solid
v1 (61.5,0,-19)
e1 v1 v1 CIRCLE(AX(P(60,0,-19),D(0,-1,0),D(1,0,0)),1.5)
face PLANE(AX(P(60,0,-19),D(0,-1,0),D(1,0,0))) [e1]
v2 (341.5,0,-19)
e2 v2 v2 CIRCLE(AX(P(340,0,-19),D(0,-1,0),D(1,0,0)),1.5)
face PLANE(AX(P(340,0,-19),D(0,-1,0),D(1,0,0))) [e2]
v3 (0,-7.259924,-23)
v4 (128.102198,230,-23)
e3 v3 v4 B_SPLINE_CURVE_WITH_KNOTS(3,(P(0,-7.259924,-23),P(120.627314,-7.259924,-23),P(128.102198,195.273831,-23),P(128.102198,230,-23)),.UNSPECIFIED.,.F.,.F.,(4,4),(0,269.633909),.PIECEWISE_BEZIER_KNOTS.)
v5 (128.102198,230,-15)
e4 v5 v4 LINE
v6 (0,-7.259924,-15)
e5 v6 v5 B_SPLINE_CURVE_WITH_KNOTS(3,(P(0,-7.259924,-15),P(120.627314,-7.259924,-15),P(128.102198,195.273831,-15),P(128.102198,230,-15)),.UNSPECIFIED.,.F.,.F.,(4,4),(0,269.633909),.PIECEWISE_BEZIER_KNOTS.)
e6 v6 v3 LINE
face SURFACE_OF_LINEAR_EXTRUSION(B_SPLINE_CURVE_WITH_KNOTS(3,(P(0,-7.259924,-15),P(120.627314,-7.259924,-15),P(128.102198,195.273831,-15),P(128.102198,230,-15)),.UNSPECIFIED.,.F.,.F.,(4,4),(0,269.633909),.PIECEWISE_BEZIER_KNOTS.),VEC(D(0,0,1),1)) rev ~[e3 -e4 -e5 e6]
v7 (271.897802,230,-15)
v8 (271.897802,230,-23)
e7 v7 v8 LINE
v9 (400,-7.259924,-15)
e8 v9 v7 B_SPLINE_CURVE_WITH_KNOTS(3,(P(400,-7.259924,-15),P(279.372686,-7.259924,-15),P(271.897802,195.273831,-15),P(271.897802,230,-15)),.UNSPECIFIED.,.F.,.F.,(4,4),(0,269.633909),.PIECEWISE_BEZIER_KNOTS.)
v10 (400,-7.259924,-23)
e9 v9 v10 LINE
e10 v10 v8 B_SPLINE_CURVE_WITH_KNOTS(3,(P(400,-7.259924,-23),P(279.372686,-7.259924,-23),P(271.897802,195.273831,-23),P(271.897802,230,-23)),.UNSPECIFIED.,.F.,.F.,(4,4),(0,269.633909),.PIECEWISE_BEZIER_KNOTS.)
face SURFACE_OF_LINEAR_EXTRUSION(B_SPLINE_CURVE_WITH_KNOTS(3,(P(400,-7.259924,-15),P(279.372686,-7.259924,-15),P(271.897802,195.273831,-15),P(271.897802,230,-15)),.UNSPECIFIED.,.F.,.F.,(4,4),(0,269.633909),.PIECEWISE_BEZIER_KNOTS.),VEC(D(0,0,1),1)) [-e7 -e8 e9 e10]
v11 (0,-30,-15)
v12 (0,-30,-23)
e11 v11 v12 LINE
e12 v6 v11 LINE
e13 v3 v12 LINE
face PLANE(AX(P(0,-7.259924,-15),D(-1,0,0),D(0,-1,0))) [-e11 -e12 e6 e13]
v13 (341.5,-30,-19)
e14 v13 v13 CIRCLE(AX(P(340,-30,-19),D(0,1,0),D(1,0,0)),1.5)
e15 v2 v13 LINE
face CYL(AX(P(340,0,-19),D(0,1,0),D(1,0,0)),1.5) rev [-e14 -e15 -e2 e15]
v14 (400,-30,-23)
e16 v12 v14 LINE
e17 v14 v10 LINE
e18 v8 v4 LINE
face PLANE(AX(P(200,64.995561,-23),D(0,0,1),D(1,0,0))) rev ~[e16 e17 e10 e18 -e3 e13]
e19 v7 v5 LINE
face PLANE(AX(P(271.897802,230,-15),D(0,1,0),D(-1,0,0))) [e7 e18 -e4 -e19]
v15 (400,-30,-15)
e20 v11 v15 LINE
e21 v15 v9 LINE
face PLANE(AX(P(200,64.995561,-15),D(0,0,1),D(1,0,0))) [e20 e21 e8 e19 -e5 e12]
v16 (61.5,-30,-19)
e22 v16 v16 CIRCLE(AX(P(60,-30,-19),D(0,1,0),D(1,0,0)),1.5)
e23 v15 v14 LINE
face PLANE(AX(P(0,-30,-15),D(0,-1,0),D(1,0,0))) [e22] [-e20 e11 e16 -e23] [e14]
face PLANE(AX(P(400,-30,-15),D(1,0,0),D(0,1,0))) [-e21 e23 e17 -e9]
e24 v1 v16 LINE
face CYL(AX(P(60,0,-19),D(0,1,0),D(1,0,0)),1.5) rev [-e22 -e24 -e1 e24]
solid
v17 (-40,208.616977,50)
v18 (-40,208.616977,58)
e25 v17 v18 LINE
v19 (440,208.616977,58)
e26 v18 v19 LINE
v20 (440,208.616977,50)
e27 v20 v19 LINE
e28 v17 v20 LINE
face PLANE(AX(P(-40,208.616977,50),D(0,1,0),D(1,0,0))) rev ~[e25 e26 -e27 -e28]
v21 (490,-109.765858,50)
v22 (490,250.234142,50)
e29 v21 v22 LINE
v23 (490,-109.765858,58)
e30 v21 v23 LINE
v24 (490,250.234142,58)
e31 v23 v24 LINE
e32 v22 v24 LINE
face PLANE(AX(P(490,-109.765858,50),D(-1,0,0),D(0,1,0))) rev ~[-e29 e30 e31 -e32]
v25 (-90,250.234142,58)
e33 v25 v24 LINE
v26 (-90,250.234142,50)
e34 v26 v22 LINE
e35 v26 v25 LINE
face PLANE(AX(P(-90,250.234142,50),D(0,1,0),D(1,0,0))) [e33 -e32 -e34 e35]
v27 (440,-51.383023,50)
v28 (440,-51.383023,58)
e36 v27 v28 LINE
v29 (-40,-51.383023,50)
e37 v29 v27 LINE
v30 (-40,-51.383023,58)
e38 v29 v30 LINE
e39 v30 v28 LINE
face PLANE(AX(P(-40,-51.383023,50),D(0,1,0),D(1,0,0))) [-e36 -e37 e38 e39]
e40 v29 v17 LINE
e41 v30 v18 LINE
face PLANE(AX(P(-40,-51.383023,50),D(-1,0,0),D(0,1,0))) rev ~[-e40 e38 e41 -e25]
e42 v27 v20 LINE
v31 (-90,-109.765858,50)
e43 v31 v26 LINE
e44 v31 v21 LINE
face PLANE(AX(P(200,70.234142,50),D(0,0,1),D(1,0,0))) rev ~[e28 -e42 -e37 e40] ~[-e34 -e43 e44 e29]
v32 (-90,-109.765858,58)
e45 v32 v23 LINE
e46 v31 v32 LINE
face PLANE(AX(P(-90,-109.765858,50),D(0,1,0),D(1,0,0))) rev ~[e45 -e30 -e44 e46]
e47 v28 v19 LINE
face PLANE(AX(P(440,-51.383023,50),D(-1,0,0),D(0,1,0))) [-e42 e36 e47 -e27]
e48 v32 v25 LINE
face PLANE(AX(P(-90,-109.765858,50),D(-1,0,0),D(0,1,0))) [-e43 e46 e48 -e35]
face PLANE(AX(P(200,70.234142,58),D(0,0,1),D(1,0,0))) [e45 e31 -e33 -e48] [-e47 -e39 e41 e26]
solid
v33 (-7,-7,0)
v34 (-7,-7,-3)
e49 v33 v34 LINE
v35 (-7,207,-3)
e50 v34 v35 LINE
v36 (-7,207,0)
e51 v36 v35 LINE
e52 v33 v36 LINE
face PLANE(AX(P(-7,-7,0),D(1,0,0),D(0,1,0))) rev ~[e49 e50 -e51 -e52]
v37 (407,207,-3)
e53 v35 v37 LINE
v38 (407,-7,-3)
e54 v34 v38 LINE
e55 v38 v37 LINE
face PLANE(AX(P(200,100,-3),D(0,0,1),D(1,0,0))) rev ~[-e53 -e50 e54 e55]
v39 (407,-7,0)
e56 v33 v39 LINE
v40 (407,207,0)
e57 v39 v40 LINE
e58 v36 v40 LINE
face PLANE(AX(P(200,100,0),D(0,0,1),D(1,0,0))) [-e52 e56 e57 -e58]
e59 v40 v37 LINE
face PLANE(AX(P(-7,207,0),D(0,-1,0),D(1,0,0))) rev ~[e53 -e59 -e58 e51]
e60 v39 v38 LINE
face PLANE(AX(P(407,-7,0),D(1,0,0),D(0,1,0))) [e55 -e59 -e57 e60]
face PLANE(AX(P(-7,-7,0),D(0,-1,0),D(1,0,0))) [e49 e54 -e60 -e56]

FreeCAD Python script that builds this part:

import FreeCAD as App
import Part
import Sketcher

V = App.Vector
Q = App.Units.Quantity


def add_polygon(sketch, points):
    """Adds a closed chain of lines whose ends are joined by coincident constraints."""
    first, n = sketch.GeometryCount, len(points)
    for a, b in zip(points, points[1:] + points[:1]):
        sketch.addGeometry(Part.LineSegment(App.Vector(*a, 0), App.Vector(*b, 0)), False)
    for i in range(n):
        sketch.addConstraint(Sketcher.Constraint("Coincident", first + i, 2, first + (i + 1) % n, 1))

doc = App.newDocument("Part")
body = doc.addObject("PartDesign::Body", "Body")

sketch1 = doc.addObject("Sketcher::SketchObject", "Sketch")
body.addObject(sketch1)
sketch1.AttachmentSupport = (doc.XY_Plane, [""])
sketch1.MapMode = "FlatFace"
add_polygon(sketch1, [(-7, 207), (-7, -7), (407, -7), (407, 207)])
sketch1.addConstraint([
    Sketcher.Constraint("Vertical", 0),
    Sketcher.Constraint("Horizontal", 1),
    Sketcher.Constraint("Vertical", 2),
    Sketcher.Constraint("Horizontal", 3),
    Sketcher.Constraint("DistanceX", 1, 1, 1, 2, Q("414 mm")),
    Sketcher.Constraint("DistanceY", 0, 2, 0, 1, Q("214 mm")),
    Sketcher.Constraint("DistanceX", 0, 2, -1, 1, Q("7 mm")),
    Sketcher.Constraint("DistanceY", 0, 2, -1, 1, Q("7 mm")),
])
pad1 = doc.addObject("PartDesign::Pad", "Pad")
body.addObject(pad1)
pad1.Profile = sketch1
pad1.Length = 3
pad1.Reversed = True
body2 = doc.addObject("PartDesign::Body", "Body001")

sketch2 = doc.addObject("Sketcher::SketchObject", "Sketch001")
body2.addObject(sketch2)
sketch2.AttachmentSupport = (doc.getObject("XY_Plane001"), [""])
sketch2.MapMode = "FlatFace"
sketch2.AttachmentOffset = App.Placement(V(0, 0, -15), App.Rotation())
sketch2.addGeometry([
    Part.LineSegment(V(0, -7.259924, 0), V(0, -30, 0)),
    Part.LineSegment(V(0, -30, 0), V(400, -30, 0)),
    Part.LineSegment(V(400, -30, 0), V(400, -7.259924, 0)),
    Part.BSplineCurve([V(400, -7.259924, 0), V(279.372686, -7.259924, 0), V(271.897802, 195.273831, 0), V(271.897802, 230, 0)], [4, 4], [0, 269.633909], False, 3, [1, 1, 1, 1], False),
    Part.LineSegment(V(271.897802, 230, 0), V(128.102198, 230, 0)),
    Part.BSplineCurve([V(0, -7.259924, 0), V(120.627314, -7.259924, 0), V(128.102198, 195.273831, 0), V(128.102198, 230, 0)], [4, 4], [0, 269.633909], False, 3, [1, 1, 1, 1], False),
], False)
sketch2.addConstraint([
    Sketcher.Constraint("Block", 3),
    Sketcher.Constraint("Block", 5),
    Sketcher.Constraint("Coincident", 0, 2, 1, 1),
    Sketcher.Constraint("Coincident", 1, 2, 2, 1),
    Sketcher.Constraint("Coincident", 2, 2, 3, 1),
    Sketcher.Constraint("Coincident", 3, 2, 4, 1),
    Sketcher.Constraint("Coincident", 4, 2, 5, 2),
    Sketcher.Constraint("Coincident", 5, 1, 0, 1),
    Sketcher.Constraint("Vertical", 0),
    Sketcher.Constraint("Horizontal", 1),
    Sketcher.Constraint("Vertical", 2),
    Sketcher.Constraint("DistanceY", 0, 2, -1, 1, Q("30 mm")),
])
pad2 = doc.addObject("PartDesign::Pad", "Pad001")
body2.addObject(pad2)
pad2.Profile = sketch2
pad2.Length = 8
pad2.Reversed = True

sketch3 = doc.addObject("Sketcher::SketchObject", "Sketch002")
body2.addObject(sketch3)
sketch3.AttachmentSupport = (doc.getObject("XZ_Plane001"), [""])
sketch3.MapMode = "FlatFace"
sketch3.addGeometry([
    Part.Circle(V(340, -19, 0), V(0, 0, 1), 1.5),
    Part.Circle(V(60, -19, 0), V(0, 0, 1), 1.5),
], False)
sketch3.addConstraint([
    Sketcher.Constraint("Equal", 0, 1),
    Sketcher.Constraint("Horizontal", 0, 3, 1, 3),
    Sketcher.Constraint("Diameter", 0, Q("3 mm")),
    Sketcher.Constraint("DistanceX", -1, 1, 0, 3, Q("340 mm")),
    Sketcher.Constraint("DistanceY", 0, 3, -1, 1, Q("19 mm")),
    Sketcher.Constraint("DistanceX", -1, 1, 1, 3, Q("60 mm")),
])
pocket1 = doc.addObject("PartDesign::Pocket", "Pocket")
body2.addObject(pocket1)
pocket1.Profile = sketch3
pocket1.Type = "ThroughAll"
pocket1.Reversed = True
body3 = doc.addObject("PartDesign::Body", "Body002")

sketch4 = doc.addObject("Sketcher::SketchObject", "Sketch003")
body3.addObject(sketch4)
sketch4.AttachmentSupport = (doc.getObject("XY_Plane002"), [""])
sketch4.MapMode = "FlatFace"
sketch4.AttachmentOffset = App.Placement(V(0, 0, 50), App.Rotation())
add_polygon(sketch4, [(-90, 250), (-90, -110), (490, -110), (490, 250)])
add_polygon(sketch4, [(440, -51), (-40, -51), (-40, 209), (440, 209)])
sketch4.addConstraint([
    Sketcher.Constraint("Vertical", 0),
    Sketcher.Constraint("Horizontal", 1),
    Sketcher.Constraint("Vertical", 2),
    Sketcher.Constraint("Horizontal", 3),
    Sketcher.Constraint("Horizontal", 4),
    Sketcher.Constraint("Vertical", 5),
    Sketcher.Constraint("Horizontal", 6),
    Sketcher.Constraint("Vertical", 7),
    Sketcher.Constraint("DistanceX", 1, 1, 1, 2, Q("580 mm")),
    Sketcher.Constraint("DistanceX", 4, 2, 4, 1, Q("480 mm")),
    Sketcher.Constraint("DistanceY", 0, 2, 0, 1, Q("360 mm")),
    Sketcher.Constraint("DistanceY", 5, 1, 5, 2, Q("260 mm")),
    Sketcher.Constraint("DistanceX", 0, 2, -1, 1, Q("90 mm")),
    Sketcher.Constraint("DistanceX", 4, 2, -1, 1, Q("40 mm")),
    Sketcher.Constraint("DistanceY", -1, 1, 2, 2, Q("250.234142 mm")),
    Sketcher.Constraint("DistanceY", 4, 2, -1, 1, Q("51.383023 mm")),
])
pad3 = doc.addObject("PartDesign::Pad", "Pad002")
body3.addObject(pad3)
pad3.Profile = sketch4
pad3.Length = 8

doc.recompute()
